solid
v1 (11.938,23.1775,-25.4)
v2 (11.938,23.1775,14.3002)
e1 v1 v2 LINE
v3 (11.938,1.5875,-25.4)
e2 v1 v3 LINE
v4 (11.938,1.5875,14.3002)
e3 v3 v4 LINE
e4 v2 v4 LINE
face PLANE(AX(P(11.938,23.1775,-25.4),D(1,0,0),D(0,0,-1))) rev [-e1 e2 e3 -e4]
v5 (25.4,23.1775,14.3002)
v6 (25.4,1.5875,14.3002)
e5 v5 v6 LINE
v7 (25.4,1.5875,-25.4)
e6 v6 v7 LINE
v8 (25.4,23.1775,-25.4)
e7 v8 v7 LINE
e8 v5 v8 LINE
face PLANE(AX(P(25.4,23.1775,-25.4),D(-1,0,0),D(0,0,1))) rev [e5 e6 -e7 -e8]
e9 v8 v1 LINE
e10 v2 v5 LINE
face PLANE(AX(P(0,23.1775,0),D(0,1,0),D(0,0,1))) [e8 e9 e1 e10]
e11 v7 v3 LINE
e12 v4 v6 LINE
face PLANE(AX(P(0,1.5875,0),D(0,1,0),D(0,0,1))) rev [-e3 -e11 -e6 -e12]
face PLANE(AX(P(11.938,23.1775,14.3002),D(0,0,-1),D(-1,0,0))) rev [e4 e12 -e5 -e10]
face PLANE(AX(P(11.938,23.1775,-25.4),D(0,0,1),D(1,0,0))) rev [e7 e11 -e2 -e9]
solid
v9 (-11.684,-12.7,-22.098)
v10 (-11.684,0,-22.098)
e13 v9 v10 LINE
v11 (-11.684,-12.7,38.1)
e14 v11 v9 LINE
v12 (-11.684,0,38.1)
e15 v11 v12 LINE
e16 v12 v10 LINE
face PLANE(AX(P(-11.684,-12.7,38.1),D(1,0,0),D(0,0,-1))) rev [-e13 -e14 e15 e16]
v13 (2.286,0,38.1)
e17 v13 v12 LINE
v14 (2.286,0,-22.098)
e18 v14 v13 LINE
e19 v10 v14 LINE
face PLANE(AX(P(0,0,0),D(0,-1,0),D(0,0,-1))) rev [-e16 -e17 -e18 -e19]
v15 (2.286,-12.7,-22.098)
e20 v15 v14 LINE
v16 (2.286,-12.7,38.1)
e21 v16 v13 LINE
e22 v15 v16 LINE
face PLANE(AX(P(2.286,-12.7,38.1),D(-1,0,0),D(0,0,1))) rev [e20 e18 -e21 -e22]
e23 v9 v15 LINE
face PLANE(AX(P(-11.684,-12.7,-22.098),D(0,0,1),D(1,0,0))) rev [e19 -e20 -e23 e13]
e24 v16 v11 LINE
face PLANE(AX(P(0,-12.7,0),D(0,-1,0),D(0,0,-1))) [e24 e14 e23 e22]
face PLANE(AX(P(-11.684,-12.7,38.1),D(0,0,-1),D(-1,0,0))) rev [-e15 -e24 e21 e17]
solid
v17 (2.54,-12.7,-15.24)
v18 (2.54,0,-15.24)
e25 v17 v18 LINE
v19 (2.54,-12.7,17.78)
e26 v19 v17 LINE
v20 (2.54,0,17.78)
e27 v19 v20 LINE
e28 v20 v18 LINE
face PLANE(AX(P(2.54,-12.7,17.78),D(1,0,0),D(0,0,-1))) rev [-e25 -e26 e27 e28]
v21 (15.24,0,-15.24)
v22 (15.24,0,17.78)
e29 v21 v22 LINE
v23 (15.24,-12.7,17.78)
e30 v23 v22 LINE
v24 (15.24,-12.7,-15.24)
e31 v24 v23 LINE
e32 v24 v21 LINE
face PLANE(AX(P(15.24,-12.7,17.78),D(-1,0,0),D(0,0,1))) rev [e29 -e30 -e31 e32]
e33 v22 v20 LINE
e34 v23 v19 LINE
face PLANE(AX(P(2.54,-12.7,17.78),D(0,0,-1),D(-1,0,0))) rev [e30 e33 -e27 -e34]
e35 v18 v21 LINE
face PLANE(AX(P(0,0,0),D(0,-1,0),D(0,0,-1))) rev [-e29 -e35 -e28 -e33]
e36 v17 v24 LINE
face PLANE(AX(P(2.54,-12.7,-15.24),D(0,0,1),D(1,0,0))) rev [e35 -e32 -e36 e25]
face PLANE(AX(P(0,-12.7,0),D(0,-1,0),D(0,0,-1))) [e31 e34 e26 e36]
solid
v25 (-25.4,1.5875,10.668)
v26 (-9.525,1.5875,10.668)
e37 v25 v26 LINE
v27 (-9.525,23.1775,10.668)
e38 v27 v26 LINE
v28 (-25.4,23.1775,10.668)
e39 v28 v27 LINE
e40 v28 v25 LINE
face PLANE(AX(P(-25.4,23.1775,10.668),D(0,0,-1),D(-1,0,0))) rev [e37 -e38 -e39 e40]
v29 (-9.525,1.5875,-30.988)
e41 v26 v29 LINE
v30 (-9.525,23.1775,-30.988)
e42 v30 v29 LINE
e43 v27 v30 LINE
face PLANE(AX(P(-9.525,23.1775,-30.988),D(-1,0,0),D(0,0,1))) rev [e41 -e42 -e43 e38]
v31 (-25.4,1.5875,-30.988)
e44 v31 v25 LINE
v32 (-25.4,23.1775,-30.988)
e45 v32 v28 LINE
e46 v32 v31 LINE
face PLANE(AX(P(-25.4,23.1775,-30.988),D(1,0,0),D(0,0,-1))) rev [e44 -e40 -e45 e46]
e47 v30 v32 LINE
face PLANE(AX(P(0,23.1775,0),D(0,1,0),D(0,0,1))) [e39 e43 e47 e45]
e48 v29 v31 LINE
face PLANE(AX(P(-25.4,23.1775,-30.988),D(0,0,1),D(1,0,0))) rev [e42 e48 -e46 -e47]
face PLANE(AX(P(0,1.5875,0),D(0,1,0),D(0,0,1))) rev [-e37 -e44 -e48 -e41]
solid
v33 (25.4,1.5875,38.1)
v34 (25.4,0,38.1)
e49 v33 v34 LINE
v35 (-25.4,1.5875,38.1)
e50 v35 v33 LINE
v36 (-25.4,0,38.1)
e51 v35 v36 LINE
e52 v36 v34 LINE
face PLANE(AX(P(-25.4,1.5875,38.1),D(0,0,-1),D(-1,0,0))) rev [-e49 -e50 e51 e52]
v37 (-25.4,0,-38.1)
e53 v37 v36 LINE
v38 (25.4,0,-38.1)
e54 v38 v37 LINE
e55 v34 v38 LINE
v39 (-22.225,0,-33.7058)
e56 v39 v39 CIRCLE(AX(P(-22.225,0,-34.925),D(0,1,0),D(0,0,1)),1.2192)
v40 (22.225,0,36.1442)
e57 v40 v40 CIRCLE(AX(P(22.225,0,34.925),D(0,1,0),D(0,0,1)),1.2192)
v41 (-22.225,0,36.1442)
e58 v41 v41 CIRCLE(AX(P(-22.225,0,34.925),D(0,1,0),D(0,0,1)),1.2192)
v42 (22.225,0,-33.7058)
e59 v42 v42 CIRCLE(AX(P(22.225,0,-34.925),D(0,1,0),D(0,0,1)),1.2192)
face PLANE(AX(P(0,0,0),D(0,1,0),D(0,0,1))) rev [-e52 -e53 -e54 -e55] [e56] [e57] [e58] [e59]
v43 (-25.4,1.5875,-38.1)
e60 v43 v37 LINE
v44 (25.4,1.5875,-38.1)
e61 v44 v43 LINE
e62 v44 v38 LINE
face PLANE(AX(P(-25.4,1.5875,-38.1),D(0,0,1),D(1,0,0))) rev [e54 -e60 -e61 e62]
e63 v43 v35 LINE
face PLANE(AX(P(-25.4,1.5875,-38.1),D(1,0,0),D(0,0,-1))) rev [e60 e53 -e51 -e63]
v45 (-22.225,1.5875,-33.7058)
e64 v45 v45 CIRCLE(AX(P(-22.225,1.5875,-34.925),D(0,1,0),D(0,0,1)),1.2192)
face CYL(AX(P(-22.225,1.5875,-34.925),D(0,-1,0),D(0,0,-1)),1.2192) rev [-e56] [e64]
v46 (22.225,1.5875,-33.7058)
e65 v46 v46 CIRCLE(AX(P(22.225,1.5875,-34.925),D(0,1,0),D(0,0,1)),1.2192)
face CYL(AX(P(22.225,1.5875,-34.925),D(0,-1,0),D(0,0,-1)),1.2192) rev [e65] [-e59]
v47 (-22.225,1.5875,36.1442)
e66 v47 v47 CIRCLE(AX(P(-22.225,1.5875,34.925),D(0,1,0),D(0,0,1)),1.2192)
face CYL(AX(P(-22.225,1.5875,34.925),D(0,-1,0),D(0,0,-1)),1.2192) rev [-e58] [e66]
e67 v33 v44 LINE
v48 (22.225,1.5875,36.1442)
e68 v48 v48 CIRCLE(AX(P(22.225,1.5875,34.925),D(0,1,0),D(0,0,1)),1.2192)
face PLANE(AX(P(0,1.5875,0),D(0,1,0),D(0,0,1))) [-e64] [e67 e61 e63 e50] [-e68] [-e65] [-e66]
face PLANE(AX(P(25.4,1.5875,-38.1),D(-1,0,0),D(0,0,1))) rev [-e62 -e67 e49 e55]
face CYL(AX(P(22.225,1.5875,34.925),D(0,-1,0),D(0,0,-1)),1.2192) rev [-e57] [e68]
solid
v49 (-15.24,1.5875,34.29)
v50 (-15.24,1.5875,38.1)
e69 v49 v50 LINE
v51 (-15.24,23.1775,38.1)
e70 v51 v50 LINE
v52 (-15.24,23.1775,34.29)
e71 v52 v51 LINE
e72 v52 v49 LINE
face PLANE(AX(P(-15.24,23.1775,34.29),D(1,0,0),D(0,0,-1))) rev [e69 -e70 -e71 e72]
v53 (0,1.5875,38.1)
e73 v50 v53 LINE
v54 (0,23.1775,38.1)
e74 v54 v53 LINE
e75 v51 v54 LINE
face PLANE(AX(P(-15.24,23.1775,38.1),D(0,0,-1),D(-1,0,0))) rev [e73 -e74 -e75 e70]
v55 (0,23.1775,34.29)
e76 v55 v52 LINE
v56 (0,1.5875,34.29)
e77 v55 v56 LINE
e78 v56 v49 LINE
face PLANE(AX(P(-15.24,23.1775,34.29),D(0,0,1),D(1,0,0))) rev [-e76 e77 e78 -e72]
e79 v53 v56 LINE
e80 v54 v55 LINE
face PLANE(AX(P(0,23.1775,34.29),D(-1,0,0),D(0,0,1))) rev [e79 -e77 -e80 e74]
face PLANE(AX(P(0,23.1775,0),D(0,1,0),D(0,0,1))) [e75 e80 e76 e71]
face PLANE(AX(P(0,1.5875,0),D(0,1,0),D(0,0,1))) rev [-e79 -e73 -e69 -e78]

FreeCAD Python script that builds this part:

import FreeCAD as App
import Part
import Sketcher

V = App.Vector
Q = App.Units.Quantity


def add_polygon(sketch, points):
    """Adds a closed chain of lines whose ends are joined by coincident constraints."""
    first, n = sketch.GeometryCount, len(points)
    for a, b in zip(points, points[1:] + points[:1]):
        sketch.addGeometry(Part.LineSegment(App.Vector(*a, 0), App.Vector(*b, 0)), False)
    for i in range(n):
        sketch.addConstraint(Sketcher.Constraint("Coincident", first + i, 2, first + (i + 1) % n, 1))

doc = App.newDocument("Part")
body = doc.addObject("PartDesign::Body", "Body")

# Sketch on XZ plane
sketch1 = body.newObject("Sketcher::SketchObject", "Sketch")
sketch1.AttachmentSupport = (doc.getObject("XZ_Plane"), [""])
sketch1.MapMode = "FlatFace"
add_polygon(sketch1, [(-25.4, -38.1), (-25.4, 38.1), (25.4, 38.1), (25.4, -38.1)])  # lines 0-3
sketch1.addGeometry(Part.Circle(V(-22.2, 34.9, 0), V(0, 0, 1), 1.2), False)  # 4
sketch1.addGeometry(Part.Circle(V(22.2, 34.9, 0), V(0, 0, 1), 1.2), False)  # 5
sketch1.addGeometry(Part.Circle(V(-22.2, -34.9, 0), V(0, 0, 1), 1.2), False)  # 6
sketch1.addGeometry(Part.Circle(V(22.2, -34.9, 0), V(0, 0, 1), 1.2), False)  # 7
sketch1.addConstraint(Sketcher.Constraint("Vertical", 0))
sketch1.addConstraint(Sketcher.Constraint("Horizontal", 1))
sketch1.addConstraint(Sketcher.Constraint("Vertical", 2))
sketch1.addConstraint(Sketcher.Constraint("Horizontal", 3))
sketch1.addConstraint(Sketcher.Constraint("Equal", 4, 5))
sketch1.addConstraint(Sketcher.Constraint("Equal", 5, 6))
sketch1.addConstraint(Sketcher.Constraint("Equal", 6, 7))
sketch1.addConstraint(Sketcher.Constraint("Symmetric", 5, 3, 6, 3, -1, 1))
sketch1.addConstraint(Sketcher.Constraint("Symmetric", 4, 3, 7, 3, -1, 1))
sketch1.addConstraint(Sketcher.Constraint("Symmetric", 0, 2, 2, 2, -1, 1))
sketch1.addConstraint(Sketcher.Constraint("Symmetric", 4, 3, 5, 3, -2))
sketch1.addConstraint(Sketcher.Constraint("DistanceX", 1, 1, 1, 2, Q("2 in")))
sketch1.addConstraint(Sketcher.Constraint("DistanceY", 0, 1, 0, 2, Q("3 in")))
sketch1.addConstraint(Sketcher.Constraint("Diameter", 4, Q("0.096 in")))
sketch1.addConstraint(Sketcher.Constraint("DistanceX", 4, 3, 5, 3, Q("1.75 in")))
sketch1.addConstraint(Sketcher.Constraint("DistanceY", 6, 3, 4, 3, Q("2.75 in")))
pad1 = body.newObject("PartDesign::Pad", "Pad")
pad1.Profile = sketch1
pad1.Length = Q("0.0625 in")
pad1.Reversed = True
body2 = doc.addObject("PartDesign::Body", "Body001")

# Sketch on XZ plane
sketch2 = body2.newObject("Sketcher::SketchObject", "Sketch001")
sketch2.AttachmentSupport = (doc.getObject("XZ_Plane001"), [""])
sketch2.MapMode = "FlatFace"
sketch2.AttachmentOffset = App.Placement(V(0, 0, -0.0625 * 25.4), App.Rotation())
add_polygon(sketch2, [(-25, -31), (-25, 11), (-10, 11), (-10, -31)])  # lines 0-3
sketch2.addConstraint(Sketcher.Constraint("Vertical", 0))
sketch2.addConstraint(Sketcher.Constraint("Horizontal", 1))
sketch2.addConstraint(Sketcher.Constraint("Vertical", 2))
sketch2.addConstraint(Sketcher.Constraint("Horizontal", 3))
sketch2.addConstraint(Sketcher.Constraint("DistanceX", 0, 2, -1, 1, Q("1 in")))
sketch2.addConstraint(Sketcher.Constraint("DistanceY", 0, 1, 0, 2, Q("1.64 in")))
sketch2.addConstraint(Sketcher.Constraint("DistanceX", 1, 1, 1, 2, Q("0.625 in")))
sketch2.addConstraint(Sketcher.Constraint("DistanceY", -1, 1, 0, 2, Q("0.42 in")))
pad2 = body2.newObject("PartDesign::Pad", "Pad001")
pad2.Profile = sketch2
pad2.Length = Q("0.85 in")
pad2.Reversed = True
body3 = doc.addObject("PartDesign::Body", "Body002")

# Sketch on XZ plane
sketch3 = body3.newObject("Sketcher::SketchObject", "Sketch002")
sketch3.AttachmentSupport = (doc.getObject("XZ_Plane002"), [""])
sketch3.MapMode = "FlatFace"
sketch3.AttachmentOffset = App.Placement(V(0, 0, -0.0625 * 25.4), App.Rotation())
add_polygon(sketch3, [(12, -25), (12, 14), (25, 14), (25, -25)])  # lines 0-3
sketch3.addConstraint(Sketcher.Constraint("Vertical", 0))
sketch3.addConstraint(Sketcher.Constraint("Horizontal", 1))
sketch3.addConstraint(Sketcher.Constraint("Vertical", 2))
sketch3.addConstraint(Sketcher.Constraint("Horizontal", 3))
sketch3.addConstraint(Sketcher.Constraint("DistanceX", -1, 1, 1, 2, Q("1 in")))
sketch3.addConstraint(Sketcher.Constraint("DistanceY", 2, 2, -1, 1, Q("1 in")))
sketch3.addConstraint(Sketcher.Constraint("DistanceX", 1, 1, 1, 2, Q("0.53 in")))
sketch3.addConstraint(Sketcher.Constraint("DistanceY", 0, 1, 0, 2, Q("1.563 in")))
pad3 = body3.newObject("PartDesign::Pad", "Pad002")
pad3.Profile = sketch3
pad3.Length = Q("0.85 in")
pad3.Reversed = True
body4 = doc.addObject("PartDesign::Body", "Body003")

# Sketch on XZ plane
sketch4 = body4.newObject("Sketcher::SketchObject", "Sketch003")
sketch4.AttachmentSupport = (doc.getObject("XZ_Plane003"), [""])
sketch4.MapMode = "FlatFace"
sketch4.AttachmentOffset = App.Placement(V(0, 0, -0.0625 * 25.4), App.Rotation())
add_polygon(sketch4, [(-15.2, 34.3), (-15.2, 38.1), (0, 38.1), (0, 34.3)])  # lines 0-3
sketch4.addConstraint(Sketcher.Constraint("Vertical", 0))
sketch4.addConstraint(Sketcher.Constraint("Horizontal", 1))
sketch4.addConstraint(Sketcher.Constraint("Vertical", 2))
sketch4.addConstraint(Sketcher.Constraint("Horizontal", 3))
sketch4.addConstraint(Sketcher.Constraint("PointOnObject", 1, 2, -2))
sketch4.addConstraint(Sketcher.Constraint("DistanceX", 1, 1, 1, 2, Q("0.6 in")))
sketch4.addConstraint(Sketcher.Constraint("DistanceY", 0, 1, 0, 2, Q("0.15 in")))
sketch4.addConstraint(Sketcher.Constraint("DistanceY", -1, 1, 0, 2, Q("1.5 in")))
pad4 = body4.newObject("PartDesign::Pad", "Pad003")
pad4.Profile = sketch4
pad4.Length = Q("0.85 in")
pad4.Reversed = True
body5 = doc.addObject("PartDesign::Body", "Body004")

# Sketch on XZ plane
sketch5 = body5.newObject("Sketcher::SketchObject", "Sketch004")
sketch5.AttachmentSupport = (doc.getObject("XZ_Plane004"), [""])
sketch5.MapMode = "FlatFace"
add_polygon(sketch5, [(-12, 38), (-12, -22), (2, -22), (2, 38)])  # lines 0-3
sketch5.addConstraint(Sketcher.Constraint("Vertical", 0))
sketch5.addConstraint(Sketcher.Constraint("Horizontal", 1))
sketch5.addConstraint(Sketcher.Constraint("Vertical", 2))
sketch5.addConstraint(Sketcher.Constraint("Horizontal", 3))
sketch5.addConstraint(Sketcher.Constraint("DistanceX", 1, 1, 1, 2, Q("0.55 in")))
sketch5.addConstraint(Sketcher.Constraint("DistanceY", 0, 2, 0, 1, Q("2.37 in")))
sketch5.addConstraint(Sketcher.Constraint("DistanceY", -1, 1, 2, 2, Q("1.5 in")))
sketch5.addConstraint(Sketcher.Constraint("DistanceX", 0, 2, -1, 1, Q("0.46 in")))
pad5 = body5.newObject("PartDesign::Pad", "Pad004")
pad5.Profile = sketch5
pad5.Length = Q("0.5 in")
body6 = doc.addObject("PartDesign::Body", "Body005")

# Sketch on XZ plane
sketch6 = body6.newObject("Sketcher::SketchObject", "Sketch005")
sketch6.AttachmentSupport = (doc.getObject("XZ_Plane005"), [""])
sketch6.MapMode = "FlatFace"
add_polygon(sketch6, [(3, 18), (3, -15), (15, -15), (15, 18)])  # lines 0-3
sketch6.addConstraint(Sketcher.Constraint("Vertical", 0))
sketch6.addConstraint(Sketcher.Constraint("Horizontal", 1))
sketch6.addConstraint(Sketcher.Constraint("Vertical", 2))
sketch6.addConstraint(Sketcher.Constraint("Horizontal", 3))
sketch6.addConstraint(Sketcher.Constraint("DistanceX", 1, 1, 1, 2, Q("0.5 in")))
sketch6.addConstraint(Sketcher.Constraint("DistanceY", 0, 2, 0, 1, Q("1.3 in")))
sketch6.addConstraint(Sketcher.Constraint("DistanceX", -1, 1, 0, 2, Q("0.1 in")))
sketch6.addConstraint(Sketcher.Constraint("DistanceY", 0, 2, -1, 1, Q("0.6 in")))
pad6 = body6.newObject("PartDesign::Pad", "Pad005")
pad6.Profile = sketch6
pad6.Length = Q("0.5 in")

doc.recompute()
